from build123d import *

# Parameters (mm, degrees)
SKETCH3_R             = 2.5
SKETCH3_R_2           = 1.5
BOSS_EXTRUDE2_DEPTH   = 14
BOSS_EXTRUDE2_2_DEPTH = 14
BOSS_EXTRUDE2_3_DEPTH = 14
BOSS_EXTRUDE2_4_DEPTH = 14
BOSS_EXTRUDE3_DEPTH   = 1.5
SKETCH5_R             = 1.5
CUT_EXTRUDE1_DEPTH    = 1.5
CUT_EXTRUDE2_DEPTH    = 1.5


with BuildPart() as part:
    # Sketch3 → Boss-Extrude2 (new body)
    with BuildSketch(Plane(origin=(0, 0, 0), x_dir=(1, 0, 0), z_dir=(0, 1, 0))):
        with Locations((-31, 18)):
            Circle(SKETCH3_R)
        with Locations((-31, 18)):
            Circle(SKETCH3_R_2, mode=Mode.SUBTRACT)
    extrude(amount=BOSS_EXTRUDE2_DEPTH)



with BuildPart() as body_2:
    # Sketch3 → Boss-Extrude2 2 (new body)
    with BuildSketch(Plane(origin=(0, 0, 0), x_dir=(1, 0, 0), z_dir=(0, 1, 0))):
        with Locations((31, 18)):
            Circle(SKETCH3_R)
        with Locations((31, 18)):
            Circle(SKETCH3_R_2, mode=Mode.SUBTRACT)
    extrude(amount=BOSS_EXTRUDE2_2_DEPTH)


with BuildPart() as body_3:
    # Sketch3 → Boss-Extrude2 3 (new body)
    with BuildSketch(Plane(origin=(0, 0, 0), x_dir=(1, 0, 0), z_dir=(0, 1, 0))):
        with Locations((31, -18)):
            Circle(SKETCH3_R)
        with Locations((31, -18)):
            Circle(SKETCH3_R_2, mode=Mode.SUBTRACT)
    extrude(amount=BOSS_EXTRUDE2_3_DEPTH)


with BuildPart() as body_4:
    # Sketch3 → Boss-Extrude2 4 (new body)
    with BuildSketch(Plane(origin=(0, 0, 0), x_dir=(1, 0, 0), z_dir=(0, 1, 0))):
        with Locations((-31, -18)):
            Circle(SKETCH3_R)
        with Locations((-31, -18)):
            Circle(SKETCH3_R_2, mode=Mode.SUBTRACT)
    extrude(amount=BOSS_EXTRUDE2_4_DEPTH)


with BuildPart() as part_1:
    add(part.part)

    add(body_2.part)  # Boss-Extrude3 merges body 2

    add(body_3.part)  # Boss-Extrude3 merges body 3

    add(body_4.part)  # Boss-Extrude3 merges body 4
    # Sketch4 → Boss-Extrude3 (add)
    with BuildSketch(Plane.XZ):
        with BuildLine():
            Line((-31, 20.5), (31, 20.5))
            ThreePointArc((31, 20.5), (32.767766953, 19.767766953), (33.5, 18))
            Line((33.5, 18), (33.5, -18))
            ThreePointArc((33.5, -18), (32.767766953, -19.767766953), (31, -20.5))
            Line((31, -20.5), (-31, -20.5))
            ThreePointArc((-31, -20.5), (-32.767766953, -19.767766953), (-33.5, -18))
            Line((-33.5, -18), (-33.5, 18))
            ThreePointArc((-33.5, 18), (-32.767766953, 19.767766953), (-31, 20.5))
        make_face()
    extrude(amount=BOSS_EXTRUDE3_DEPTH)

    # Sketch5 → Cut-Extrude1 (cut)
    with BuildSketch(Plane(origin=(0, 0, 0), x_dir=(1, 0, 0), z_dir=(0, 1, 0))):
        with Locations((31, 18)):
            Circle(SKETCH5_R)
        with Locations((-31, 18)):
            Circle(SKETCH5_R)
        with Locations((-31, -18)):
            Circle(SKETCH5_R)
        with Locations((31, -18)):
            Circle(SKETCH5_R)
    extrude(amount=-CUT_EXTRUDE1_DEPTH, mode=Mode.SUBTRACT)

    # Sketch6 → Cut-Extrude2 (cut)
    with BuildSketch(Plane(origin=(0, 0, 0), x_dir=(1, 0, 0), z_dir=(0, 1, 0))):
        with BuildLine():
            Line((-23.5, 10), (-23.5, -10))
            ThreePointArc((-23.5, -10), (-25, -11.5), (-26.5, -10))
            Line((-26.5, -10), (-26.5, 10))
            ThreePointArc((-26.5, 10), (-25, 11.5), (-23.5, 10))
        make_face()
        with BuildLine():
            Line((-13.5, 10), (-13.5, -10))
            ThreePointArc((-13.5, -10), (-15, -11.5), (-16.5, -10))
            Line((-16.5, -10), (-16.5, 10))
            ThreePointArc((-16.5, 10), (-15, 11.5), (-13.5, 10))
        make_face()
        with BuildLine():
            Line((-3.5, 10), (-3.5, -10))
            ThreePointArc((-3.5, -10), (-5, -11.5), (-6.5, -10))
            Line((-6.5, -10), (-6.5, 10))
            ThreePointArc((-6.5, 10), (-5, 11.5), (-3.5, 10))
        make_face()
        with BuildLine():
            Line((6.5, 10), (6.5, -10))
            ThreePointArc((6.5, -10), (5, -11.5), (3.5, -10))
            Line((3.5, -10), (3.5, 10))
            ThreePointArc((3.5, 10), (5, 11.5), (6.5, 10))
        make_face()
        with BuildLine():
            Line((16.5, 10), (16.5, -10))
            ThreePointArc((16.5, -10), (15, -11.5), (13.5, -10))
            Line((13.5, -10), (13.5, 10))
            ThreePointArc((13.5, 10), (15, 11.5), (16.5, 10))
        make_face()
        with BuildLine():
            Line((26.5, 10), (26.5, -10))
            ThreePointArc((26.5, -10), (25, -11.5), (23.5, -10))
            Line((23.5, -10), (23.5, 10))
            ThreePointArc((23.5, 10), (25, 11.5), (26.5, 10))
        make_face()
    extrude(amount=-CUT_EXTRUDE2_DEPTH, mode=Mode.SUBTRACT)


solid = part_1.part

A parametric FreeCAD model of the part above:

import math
import FreeCAD as App
import Part
import Sketcher
from FreeCAD import Vector
Q = App.Units.Quantity

doc = App.newDocument("Part")
body = doc.addObject("PartDesign::Body", "Body")

sketch1 = doc.addObject("Sketcher::SketchObject", "Sketch")
body.addObject(sketch1)
sketch1.AttachmentSupport = (doc.XZ_Plane, [""])
sketch1.MapMode = "FlatFace"
sketch1.addGeometry(Part.Circle(Vector(-31, -18, 0), Vector(0, 0, 1), 2.5), False)
sketch1.addGeometry(Part.Circle(Vector(-31, -18, 0), Vector(0, 0, 1), 1.5), False)
sketch1.addConstraint(Sketcher.Constraint("Coincident", 1, 3, 0, 3))
sketch1.addConstraint(Sketcher.Constraint("Diameter", 0, Q("5 mm")))
sketch1.addConstraint(Sketcher.Constraint("Diameter", 1, Q("3 mm")))
sketch1.addConstraint(Sketcher.Constraint("DistanceX", 0, 3, -1, 1, Q("31 mm")))
sketch1.addConstraint(Sketcher.Constraint("DistanceY", 0, 3, -1, 1, Q("18 mm")))
pad1 = doc.addObject("PartDesign::Pad", "Pad")
body.addObject(pad1)
pad1.Profile = sketch1
pad1.Length = 14
pad1.Reversed = True
body2 = doc.addObject("PartDesign::Body", "Body001")

sketch2 = doc.addObject("Sketcher::SketchObject", "Sketch001")
body2.addObject(sketch2)
sketch2.AttachmentSupport = (doc.getObject("XZ_Plane001"), [""])
sketch2.MapMode = "FlatFace"
sketch2.addGeometry(Part.Circle(Vector(31, -18, 0), Vector(0, 0, 1), 2.5), False)
sketch2.addGeometry(Part.Circle(Vector(31, -18, 0), Vector(0, 0, 1), 1.5), False)
sketch2.addConstraint(Sketcher.Constraint("Coincident", 1, 3, 0, 3))
sketch2.addConstraint(Sketcher.Constraint("Diameter", 0, Q("5 mm")))
sketch2.addConstraint(Sketcher.Constraint("Diameter", 1, Q("3 mm")))
sketch2.addConstraint(Sketcher.Constraint("DistanceX", -1, 1, 0, 3, Q("31 mm")))
sketch2.addConstraint(Sketcher.Constraint("DistanceY", 0, 3, -1, 1, Q("18 mm")))
pad2 = doc.addObject("PartDesign::Pad", "Pad001")
body2.addObject(pad2)
pad2.Profile = sketch2
pad2.Length = 14
pad2.Reversed = True
body3 = doc.addObject("PartDesign::Body", "Body002")

sketch3 = doc.addObject("Sketcher::SketchObject", "Sketch002")
body3.addObject(sketch3)
sketch3.AttachmentSupport = (doc.getObject("XZ_Plane002"), [""])
sketch3.MapMode = "FlatFace"
sketch3.addGeometry(Part.Circle(Vector(31, 18, 0), Vector(0, 0, 1), 2.5), False)
sketch3.addGeometry(Part.Circle(Vector(31, 18, 0), Vector(0, 0, 1), 1.5), False)
sketch3.addConstraint(Sketcher.Constraint("Coincident", 1, 3, 0, 3))
sketch3.addConstraint(Sketcher.Constraint("Diameter", 0, Q("5 mm")))
sketch3.addConstraint(Sketcher.Constraint("Diameter", 1, Q("3 mm")))
sketch3.addConstraint(Sketcher.Constraint("DistanceX", -1, 1, 0, 3, Q("31 mm")))
sketch3.addConstraint(Sketcher.Constraint("DistanceY", -1, 1, 0, 3, Q("18 mm")))
pad3 = doc.addObject("PartDesign::Pad", "Pad002")
body3.addObject(pad3)
pad3.Profile = sketch3
pad3.Length = 14
pad3.Reversed = True
body4 = doc.addObject("PartDesign::Body", "Body003")

sketch4 = doc.addObject("Sketcher::SketchObject", "Sketch003")
body4.addObject(sketch4)
sketch4.AttachmentSupport = (doc.getObject("XZ_Plane003"), [""])
sketch4.MapMode = "FlatFace"
sketch4.addGeometry(Part.Circle(Vector(-31, 18, 0), Vector(0, 0, 1), 2.5), False)
sketch4.addGeometry(Part.Circle(Vector(-31, 18, 0), Vector(0, 0, 1), 1.5), False)
sketch4.addConstraint(Sketcher.Constraint("Coincident", 1, 3, 0, 3))
sketch4.addConstraint(Sketcher.Constraint("Diameter", 0, Q("5 mm")))
sketch4.addConstraint(Sketcher.Constraint("Diameter", 1, Q("3 mm")))
sketch4.addConstraint(Sketcher.Constraint("DistanceX", 0, 3, -1, 1, Q("31 mm")))
sketch4.addConstraint(Sketcher.Constraint("DistanceY", -1, 1, 0, 3, Q("18 mm")))
pad4 = doc.addObject("PartDesign::Pad", "Pad003")
body4.addObject(pad4)
pad4.Profile = sketch4
pad4.Length = 14
pad4.Reversed = True
body.AllowCompound = True
doc.recompute()

boolean = doc.addObject("PartDesign::Boolean", "Boolean")
body.addObject(boolean)
boolean.Type = "Fuse"
boolean.addObjects([body2])
doc.recompute()

boolean2 = doc.addObject("PartDesign::Boolean", "Boolean001")
body.addObject(boolean2)
boolean2.Type = "Fuse"
boolean2.addObjects([body3])
doc.recompute()

boolean3 = doc.addObject("PartDesign::Boolean", "Boolean002")
body.addObject(boolean3)
boolean3.Type = "Fuse"
boolean3.addObjects([body4])

sketch5 = doc.addObject("Sketcher::SketchObject", "Sketch004")
body.addObject(sketch5)
sketch5.AttachmentSupport = (doc.XZ_Plane, [""])
sketch5.MapMode = "FlatFace"
sketch5.addGeometry(Part.LineSegment(Vector(31, 20.5, 0), Vector(-31, 20.5, 0)), False)
sketch5.addGeometry(Part.ArcOfCircle(Part.Circle(Vector(-31, 18, 0), Vector(0, 0, 1), 2.5), math.radians(90), math.radians(180)), False)
sketch5.addGeometry(Part.LineSegment(Vector(-33.5, 18, 0), Vector(-33.5, -18, 0)), False)
sketch5.addGeometry(Part.ArcOfCircle(Part.Circle(Vector(-31, -18, 0), Vector(0, 0, 1), 2.5), math.radians(180), math.radians(270)), False)
sketch5.addGeometry(Part.LineSegment(Vector(-31, -20.5, 0), Vector(31, -20.5, 0)), False)
sketch5.addGeometry(Part.ArcOfCircle(Part.Circle(Vector(31, -18, 0), Vector(0, 0, 1), 2.5), math.radians(-90), math.radians(0)), False)
sketch5.addGeometry(Part.LineSegment(Vector(33.5, -18, 0), Vector(33.5, 18, 0)), False)
sketch5.addGeometry(Part.ArcOfCircle(Part.Circle(Vector(31, 18, 0), Vector(0, 0, 1), 2.5), math.radians(0), math.radians(90)), False)
sketch5.addConstraint(Sketcher.Constraint("Tangent", 0, 2, 1, 1))
sketch5.addConstraint(Sketcher.Constraint("Tangent", 1, 2, 2, 1))
sketch5.addConstraint(Sketcher.Constraint("Tangent", 2, 2, 3, 1))
sketch5.addConstraint(Sketcher.Constraint("Tangent", 3, 2, 4, 1))
sketch5.addConstraint(Sketcher.Constraint("Tangent", 4, 2, 5, 1))
sketch5.addConstraint(Sketcher.Constraint("Tangent", 5, 2, 6, 1))
sketch5.addConstraint(Sketcher.Constraint("Tangent", 6, 2, 7, 1))
sketch5.addConstraint(Sketcher.Constraint("Tangent", 7, 2, 0, 1))
sketch5.addConstraint(Sketcher.Constraint("Horizontal", 0))
sketch5.addConstraint(Sketcher.Constraint("Vertical", 2))
sketch5.addConstraint(Sketcher.Constraint("Horizontal", 4))
sketch5.addConstraint(Sketcher.Constraint("Vertical", 6))
sketch5.addConstraint(Sketcher.Constraint("Equal", 1, 3))
sketch5.addConstraint(Sketcher.Constraint("Equal", 3, 5))
sketch5.addConstraint(Sketcher.Constraint("Equal", 5, 7))
sketch5.addConstraint(Sketcher.Constraint("Symmetric", 1, 3, 5, 3, -1, 1))
sketch5.addConstraint(Sketcher.Constraint("Radius", 1, Q("2.5 mm")))
sketch5.addConstraint(Sketcher.Constraint("DistanceX", 0, 2, 0, 1, Q("62 mm")))
sketch5.addConstraint(Sketcher.Constraint("DistanceY", 2, 2, 2, 1, Q("36 mm")))
pad5 = doc.addObject("PartDesign::Pad", "Pad004")
body.addObject(pad5)
pad5.Profile = sketch5
pad5.Length = 1.5

sketch6 = doc.addObject("Sketcher::SketchObject", "Sketch005")
body.addObject(sketch6)
sketch6.AttachmentSupport = (doc.XZ_Plane, [""])
sketch6.MapMode = "FlatFace"
sketch6.addGeometry(Part.Circle(Vector(31, -18, 0), Vector(0, 0, 1), 1.5), False)
sketch6.addGeometry(Part.Circle(Vector(-31, -18, 0), Vector(0, 0, 1), 1.5), False)
sketch6.addGeometry(Part.Circle(Vector(-31, 18, 0), Vector(0, 0, 1), 1.5), False)
sketch6.addGeometry(Part.Circle(Vector(31, 18, 0), Vector(0, 0, 1), 1.5), False)
sketch6.addConstraint(Sketcher.Constraint("Equal", 0, 1))
sketch6.addConstraint(Sketcher.Constraint("Equal", 1, 2))
sketch6.addConstraint(Sketcher.Constraint("Equal", 2, 3))
sketch6.addConstraint(Sketcher.Constraint("Symmetric", 0, 3, 2, 3, -1, 1))
sketch6.addConstraint(Sketcher.Constraint("Symmetric", 1, 3, 3, 3, -1, 1))
sketch6.addConstraint(Sketcher.Constraint("Symmetric", 0, 3, 1, 3, -2))
sketch6.addConstraint(Sketcher.Constraint("Diameter", 0, Q("3 mm")))
sketch6.addConstraint(Sketcher.Constraint("DistanceX", -1, 1, 0, 3, Q("31 mm")))
sketch6.addConstraint(Sketcher.Constraint("DistanceY", 0, 3, -1, 1, Q("18 mm")))
pocket1 = doc.addObject("PartDesign::Pocket", "Pocket")
body.addObject(pocket1)
pocket1.Profile = sketch6
pocket1.Length = 1.5
pocket1.Reversed = True

sketch7 = doc.addObject("Sketcher::SketchObject", "Sketch006")
body.addObject(sketch7)
sketch7.AttachmentSupport = (doc.XZ_Plane, [""])
sketch7.MapMode = "FlatFace"
sketch7.addGeometry(Part.LineSegment(Vector(-23.5, 10, 0), Vector(-23.5, -10, 0)), False)
sketch7.addGeometry(Part.ArcOfCircle(Part.Circle(Vector(-25, -10, 0), Vector(0, 0, 1), 1.5), math.radians(180), math.radians(360)), False)
sketch7.addGeometry(Part.LineSegment(Vector(-26.5, -10, 0), Vector(-26.5, 10, 0)), False)
sketch7.addGeometry(Part.ArcOfCircle(Part.Circle(Vector(-25, 10, 0), Vector(0, 0, 1), 1.5), math.radians(0), math.radians(180)), False)
sketch7.addGeometry(Part.LineSegment(Vector(-13.5, 10, 0), Vector(-13.5, -10, 0)), False)
sketch7.addGeometry(Part.ArcOfCircle(Part.Circle(Vector(-15, -10, 0), Vector(0, 0, 1), 1.5), math.radians(180), math.radians(360)), False)
sketch7.addGeometry(Part.LineSegment(Vector(-16.5, -10, 0), Vector(-16.5, 10, 0)), False)
sketch7.addGeometry(Part.ArcOfCircle(Part.Circle(Vector(-15, 10, 0), Vector(0, 0, 1), 1.5), math.radians(0), math.radians(180)), False)
sketch7.addGeometry(Part.LineSegment(Vector(-3.5, 10, 0), Vector(-3.5, -10, 0)), False)
sketch7.addGeometry(Part.ArcOfCircle(Part.Circle(Vector(-5, -10, 0), Vector(0, 0, 1), 1.5), math.radians(180), math.radians(360)), False)
sketch7.addGeometry(Part.LineSegment(Vector(-6.5, -10, 0), Vector(-6.5, 10, 0)), False)
sketch7.addGeometry(Part.ArcOfCircle(Part.Circle(Vector(-5, 10, 0), Vector(0, 0, 1), 1.5), math.radians(0), math.radians(180)), False)
sketch7.addGeometry(Part.LineSegment(Vector(6.5, 10, 0), Vector(6.5, -10, 0)), False)
sketch7.addGeometry(Part.ArcOfCircle(Part.Circle(Vector(5, -10, 0), Vector(0, 0, 1), 1.5), math.radians(180), math.radians(360)), False)
sketch7.addGeometry(Part.LineSegment(Vector(3.5, -10, 0), Vector(3.5, 10, 0)), False)
sketch7.addGeometry(Part.ArcOfCircle(Part.Circle(Vector(5, 10, 0), Vector(0, 0, 1), 1.5), math.radians(0), math.radians(180)), False)
sketch7.addGeometry(Part.LineSegment(Vector(16.5, 10, 0), Vector(16.5, -10, 0)), False)
sketch7.addGeometry(Part.ArcOfCircle(Part.Circle(Vector(15, -10, 0), Vector(0, 0, 1), 1.5), math.radians(180), math.radians(360)), False)
sketch7.addGeometry(Part.LineSegment(Vector(13.5, -10, 0), Vector(13.5, 10, 0)), False)
sketch7.addGeometry(Part.ArcOfCircle(Part.Circle(Vector(15, 10, 0), Vector(0, 0, 1), 1.5), math.radians(0), math.radians(180)), False)
sketch7.addGeometry(Part.LineSegment(Vector(26.5, 10, 0), Vector(26.5, -10, 0)), False)
sketch7.addGeometry(Part.ArcOfCircle(Part.Circle(Vector(25, -10, 0), Vector(0, 0, 1), 1.5), math.radians(180), math.radians(360)), False)
sketch7.addGeometry(Part.LineSegment(Vector(23.5, -10, 0), Vector(23.5, 10, 0)), False)
sketch7.addGeometry(Part.ArcOfCircle(Part.Circle(Vector(25, 10, 0), Vector(0, 0, 1), 1.5), math.radians(0), math.radians(180)), False)
sketch7.addConstraint(Sketcher.Constraint("Tangent", 0, 2, 1, 2))
sketch7.addConstraint(Sketcher.Constraint("Tangent", 1, 1, 2, 1))
sketch7.addConstraint(Sketcher.Constraint("Tangent", 2, 2, 3, 2))
sketch7.addConstraint(Sketcher.Constraint("Tangent", 3, 1, 0, 1))
sketch7.addConstraint(Sketcher.Constraint("Tangent", 4, 2, 5, 2))
sketch7.addConstraint(Sketcher.Constraint("Tangent", 5, 1, 6, 1))
sketch7.addConstraint(Sketcher.Constraint("Tangent", 6, 2, 7, 2))
sketch7.addConstraint(Sketcher.Constraint("Tangent", 7, 1, 4, 1))
sketch7.addConstraint(Sketcher.Constraint("Tangent", 8, 2, 9, 2))
sketch7.addConstraint(Sketcher.Constraint("Tangent", 9, 1, 10, 1))
sketch7.addConstraint(Sketcher.Constraint("Tangent", 10, 2, 11, 2))
sketch7.addConstraint(Sketcher.Constraint("Tangent", 11, 1, 8, 1))
sketch7.addConstraint(Sketcher.Constraint("Tangent", 12, 2, 13, 2))
sketch7.addConstraint(Sketcher.Constraint("Tangent", 13, 1, 14, 1))
sketch7.addConstraint(Sketcher.Constraint("Tangent", 14, 2, 15, 2))
sketch7.addConstraint(Sketcher.Constraint("Tangent", 15, 1, 12, 1))
sketch7.addConstraint(Sketcher.Constraint("Tangent", 16, 2, 17, 2))
sketch7.addConstraint(Sketcher.Constraint("Tangent", 17, 1, 18, 1))
sketch7.addConstraint(Sketcher.Constraint("Tangent", 18, 2, 19, 2))
sketch7.addConstraint(Sketcher.Constraint("Tangent", 19, 1, 16, 1))
sketch7.addConstraint(Sketcher.Constraint("Tangent", 20, 2, 21, 2))
sketch7.addConstraint(Sketcher.Constraint("Tangent", 21, 1, 22, 1))
sketch7.addConstraint(Sketcher.Constraint("Tangent", 22, 2, 23, 2))
sketch7.addConstraint(Sketcher.Constraint("Tangent", 23, 1, 20, 1))
sketch7.addConstraint(Sketcher.Constraint("Vertical", 0))
sketch7.addConstraint(Sketcher.Constraint("Vertical", 2))
sketch7.addConstraint(Sketcher.Constraint("Vertical", 4))
sketch7.addConstraint(Sketcher.Constraint("Vertical", 6))
sketch7.addConstraint(Sketcher.Constraint("Vertical", 8))
sketch7.addConstraint(Sketcher.Constraint("Vertical", 10))
sketch7.addConstraint(Sketcher.Constraint("Vertical", 12))
sketch7.addConstraint(Sketcher.Constraint("Vertical", 14))
sketch7.addConstraint(Sketcher.Constraint("Vertical", 16))
sketch7.addConstraint(Sketcher.Constraint("Vertical", 18))
sketch7.addConstraint(Sketcher.Constraint("Vertical", 20))
sketch7.addConstraint(Sketcher.Constraint("Vertical", 22))
sketch7.addConstraint(Sketcher.Constraint("Equal", 3, 5))
sketch7.addConstraint(Sketcher.Constraint("Equal", 7, 9))
sketch7.addConstraint(Sketcher.Constraint("Equal", 11, 13))
sketch7.addConstraint(Sketcher.Constraint("Equal", 15, 17))
sketch7.addConstraint(Sketcher.Constraint("Equal", 19, 21))
sketch7.addConstraint(Sketcher.Constraint("Symmetric", 11, 3, 13, 3, -1, 1))
sketch7.addConstraint(Sketcher.Constraint("Symmetric", 7, 3, 17, 3, -1, 1))
sketch7.addConstraint(Sketcher.Constraint("Symmetric", 3, 3, 21, 3, -1, 1))
sketch7.addConstraint(Sketcher.Constraint("Horizontal", 1, 3, 5, 3))
sketch7.addConstraint(Sketcher.Constraint("Horizontal", 3, 3, 7, 3))
sketch7.addConstraint(Sketcher.Constraint("Horizontal", 5, 3, 9, 3))
sketch7.addConstraint(Sketcher.Constraint("Horizontal", 7, 3, 11, 3))
sketch7.addConstraint(Sketcher.Constraint("Horizontal", 9, 3, 13, 3))
sketch7.addConstraint(Sketcher.Constraint("Horizontal", 11, 3, 15, 3))
sketch7.addConstraint(Sketcher.Constraint("Horizontal", 15, 3, 19, 3))
sketch7.addConstraint(Sketcher.Constraint("Horizontal", 19, 3, 23, 3))
sketch7.addConstraint(Sketcher.Constraint("Radius", 1, Q("1.5 mm")))
sketch7.addConstraint(Sketcher.Constraint("DistanceY", 0, 2, 0, 1, Q("20 mm")))
sketch7.addConstraint(Sketcher.Constraint("DistanceX", 1, 3, -1, 1, Q("25 mm")))
sketch7.addConstraint(Sketcher.Constraint("DistanceX", 5, 3, -1, 1, Q("15 mm")))
sketch7.addConstraint(Sketcher.Constraint("DistanceX", 9, 3, -1, 1, Q("5 mm")))
pocket2 = doc.addObject("PartDesign::Pocket", "Pocket001")
body.addObject(pocket2)
pocket2.Profile = sketch7
pocket2.Length = 1.5
pocket2.Reversed = True

doc.recompute()
